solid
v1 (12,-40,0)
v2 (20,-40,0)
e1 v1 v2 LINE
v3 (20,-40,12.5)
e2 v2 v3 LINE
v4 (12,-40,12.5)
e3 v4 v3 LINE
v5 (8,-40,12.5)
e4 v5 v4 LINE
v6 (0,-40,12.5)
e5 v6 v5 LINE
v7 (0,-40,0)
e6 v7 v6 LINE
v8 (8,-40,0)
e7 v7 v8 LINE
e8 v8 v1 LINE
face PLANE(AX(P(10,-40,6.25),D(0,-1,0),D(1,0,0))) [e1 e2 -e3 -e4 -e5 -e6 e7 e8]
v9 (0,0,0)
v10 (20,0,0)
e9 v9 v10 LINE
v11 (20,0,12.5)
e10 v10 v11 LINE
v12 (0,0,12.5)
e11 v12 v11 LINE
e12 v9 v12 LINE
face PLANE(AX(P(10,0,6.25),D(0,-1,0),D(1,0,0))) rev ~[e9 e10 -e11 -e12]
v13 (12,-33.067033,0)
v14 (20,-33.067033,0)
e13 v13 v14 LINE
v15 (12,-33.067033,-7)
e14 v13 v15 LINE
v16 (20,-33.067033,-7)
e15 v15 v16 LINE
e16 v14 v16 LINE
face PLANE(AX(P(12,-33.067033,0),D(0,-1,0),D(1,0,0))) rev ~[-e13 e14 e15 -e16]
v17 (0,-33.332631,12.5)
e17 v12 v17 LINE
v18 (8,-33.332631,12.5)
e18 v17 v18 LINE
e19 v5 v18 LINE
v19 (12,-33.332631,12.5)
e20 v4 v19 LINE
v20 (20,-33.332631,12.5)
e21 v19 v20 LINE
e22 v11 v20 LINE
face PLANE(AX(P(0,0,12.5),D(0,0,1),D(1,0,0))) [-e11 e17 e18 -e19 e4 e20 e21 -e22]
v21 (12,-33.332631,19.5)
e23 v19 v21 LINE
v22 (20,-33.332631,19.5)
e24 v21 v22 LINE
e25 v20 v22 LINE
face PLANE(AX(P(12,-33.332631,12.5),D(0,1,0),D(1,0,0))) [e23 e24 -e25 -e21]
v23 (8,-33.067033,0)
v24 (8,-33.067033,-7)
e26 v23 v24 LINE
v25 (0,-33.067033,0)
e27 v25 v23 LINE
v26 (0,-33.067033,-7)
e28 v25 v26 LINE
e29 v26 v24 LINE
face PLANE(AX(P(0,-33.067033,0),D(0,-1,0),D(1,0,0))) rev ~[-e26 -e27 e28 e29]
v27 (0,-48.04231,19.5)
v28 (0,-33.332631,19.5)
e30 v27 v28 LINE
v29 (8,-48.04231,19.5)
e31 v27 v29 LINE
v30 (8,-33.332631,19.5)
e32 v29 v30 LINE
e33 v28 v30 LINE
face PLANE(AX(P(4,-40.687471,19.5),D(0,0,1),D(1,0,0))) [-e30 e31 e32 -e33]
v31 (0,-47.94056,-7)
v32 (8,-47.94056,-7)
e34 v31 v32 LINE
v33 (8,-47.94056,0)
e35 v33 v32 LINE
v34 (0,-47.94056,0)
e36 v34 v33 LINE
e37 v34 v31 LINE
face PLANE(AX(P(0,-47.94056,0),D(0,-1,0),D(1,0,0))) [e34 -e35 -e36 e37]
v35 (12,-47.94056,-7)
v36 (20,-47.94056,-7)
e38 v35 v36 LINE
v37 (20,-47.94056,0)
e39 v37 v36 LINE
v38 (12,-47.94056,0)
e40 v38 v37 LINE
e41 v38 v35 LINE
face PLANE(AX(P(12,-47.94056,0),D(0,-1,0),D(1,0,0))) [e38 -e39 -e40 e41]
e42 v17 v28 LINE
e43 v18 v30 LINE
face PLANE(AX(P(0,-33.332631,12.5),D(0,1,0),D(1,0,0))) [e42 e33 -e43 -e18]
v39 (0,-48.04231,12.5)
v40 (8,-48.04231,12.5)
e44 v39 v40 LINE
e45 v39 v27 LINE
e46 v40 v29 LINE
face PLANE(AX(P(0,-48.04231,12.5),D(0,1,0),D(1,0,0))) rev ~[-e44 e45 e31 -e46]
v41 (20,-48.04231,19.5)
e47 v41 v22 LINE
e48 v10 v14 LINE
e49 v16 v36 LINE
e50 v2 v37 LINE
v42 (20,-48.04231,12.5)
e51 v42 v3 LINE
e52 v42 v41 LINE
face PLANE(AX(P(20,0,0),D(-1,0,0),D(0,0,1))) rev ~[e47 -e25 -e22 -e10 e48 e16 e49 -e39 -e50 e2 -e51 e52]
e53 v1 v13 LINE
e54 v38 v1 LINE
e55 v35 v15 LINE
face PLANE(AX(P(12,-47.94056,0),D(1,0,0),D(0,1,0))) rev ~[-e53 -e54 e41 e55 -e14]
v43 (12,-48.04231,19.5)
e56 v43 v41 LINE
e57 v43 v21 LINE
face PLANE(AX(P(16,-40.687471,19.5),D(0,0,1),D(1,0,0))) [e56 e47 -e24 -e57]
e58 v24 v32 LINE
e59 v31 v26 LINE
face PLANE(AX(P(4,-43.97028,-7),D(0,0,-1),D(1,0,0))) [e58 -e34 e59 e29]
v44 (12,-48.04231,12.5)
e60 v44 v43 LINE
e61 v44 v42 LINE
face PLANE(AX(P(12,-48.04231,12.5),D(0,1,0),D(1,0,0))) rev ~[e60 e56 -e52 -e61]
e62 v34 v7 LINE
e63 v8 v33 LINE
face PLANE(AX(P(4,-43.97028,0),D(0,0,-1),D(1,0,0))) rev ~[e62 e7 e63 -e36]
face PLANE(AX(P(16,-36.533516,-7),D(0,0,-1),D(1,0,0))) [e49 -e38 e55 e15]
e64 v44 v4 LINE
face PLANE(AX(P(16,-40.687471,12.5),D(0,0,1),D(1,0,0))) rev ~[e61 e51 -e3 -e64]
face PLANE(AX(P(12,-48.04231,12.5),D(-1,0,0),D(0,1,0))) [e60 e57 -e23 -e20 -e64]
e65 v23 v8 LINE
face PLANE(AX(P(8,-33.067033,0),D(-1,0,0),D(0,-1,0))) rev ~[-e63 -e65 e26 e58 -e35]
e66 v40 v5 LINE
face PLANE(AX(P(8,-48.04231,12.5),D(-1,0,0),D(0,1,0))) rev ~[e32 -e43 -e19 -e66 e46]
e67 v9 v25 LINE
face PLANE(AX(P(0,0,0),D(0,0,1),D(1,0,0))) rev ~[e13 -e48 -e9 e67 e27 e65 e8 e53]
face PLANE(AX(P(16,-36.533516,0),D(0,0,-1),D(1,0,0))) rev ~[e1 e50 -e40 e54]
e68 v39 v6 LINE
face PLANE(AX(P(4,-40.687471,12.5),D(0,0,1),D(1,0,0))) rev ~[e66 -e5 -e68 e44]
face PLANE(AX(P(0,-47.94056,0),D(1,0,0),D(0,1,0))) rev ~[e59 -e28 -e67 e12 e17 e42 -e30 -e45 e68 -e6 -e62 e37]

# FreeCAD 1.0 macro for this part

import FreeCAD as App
import Part
import Sketcher

V = App.Vector


def add_polygon(sketch, points):
    """Adds a closed chain of lines whose ends are joined by coincident constraints."""
    first, n = sketch.GeometryCount, len(points)
    for a, b in zip(points, points[1:] + points[:1]):
        sketch.addGeometry(Part.LineSegment(App.Vector(*a, 0), App.Vector(*b, 0)), False)
    for i in range(n):
        sketch.addConstraint(Sketcher.Constraint("Coincident", first + i, 2, first + (i + 1) % n, 1))

doc = App.newDocument("Part")
params = doc.addObject("Spreadsheet::Sheet", "Params")
for row, (alias, value) in enumerate([
    ("sketch1_width", "20 mm"),
    ("sketch1_height", "12.5 mm"),
    ("pad1_length", "40 mm"),
    ("sketch2_width", "8 mm"),
    ("pad2_length", "7 mm"),
    ("sketch3_width", "8 mm"),
    ("pad3_length", "7 mm"),
], start=1):
    params.set(f"A{row}", alias)
    params.set(f"B{row}", "=" + value)
    params.setAlias(f"B{row}", alias)

body = doc.addObject("PartDesign::Body", "Body")

# Sketch on XZ plane
sketch1 = body.newObject("Sketcher::SketchObject", "Sketch")
sketch1.AttachmentSupport = (doc.getObject("XZ_Plane"), [""])
sketch1.MapMode = "FlatFace"
add_polygon(sketch1, [(0, 12), (0, 0), (20, 0), (20, 12)])  # lines 0-3
sketch1.addConstraint([
    Sketcher.Constraint("Vertical", 0),
    Sketcher.Constraint("Horizontal", 1),
    Sketcher.Constraint("Vertical", 2),
    Sketcher.Constraint("Horizontal", 3),
    Sketcher.Constraint("Coincident", 0, 2, -1, 1),
    Sketcher.Constraint("DistanceX", 1, 1, 1, 2, 20.0),
    Sketcher.Constraint("DistanceY", 0, 2, 0, 1, 12.5),
])
sketch1.setExpression("Constraints[9]", "Params.sketch1_width")
sketch1.setExpression("Constraints[10]", "Params.sketch1_height")
pad1 = body.newObject("PartDesign::Pad", "Pad")
pad1.Profile = sketch1
pad1.setExpression("Length", "Params.pad1_length")

# Sketch on XY plane
sketch2 = body.newObject("Sketcher::SketchObject", "Sketch001")
sketch2.AttachmentSupport = (doc.getObject("XY_Plane"), [""])
sketch2.MapMode = "FlatFace"
sketch2.AttachmentOffset = App.Placement(V(0, 0, 12.5), App.Rotation())
add_polygon(sketch2, [(0, -33), (0, -48), (8, -48), (8, -33)])  # lines 0-3
add_polygon(sketch2, [(12, -33), (12, -48), (20, -48), (20, -33)])  # lines 4-7
sketch2.addConstraint([
    Sketcher.Constraint("Vertical", 0),
    Sketcher.Constraint("Horizontal", 1),
    Sketcher.Constraint("Vertical", 2),
    Sketcher.Constraint("Horizontal", 3),
    Sketcher.Constraint("Vertical", 4),
    Sketcher.Constraint("Horizontal", 5),
    Sketcher.Constraint("Vertical", 6),
    Sketcher.Constraint("Horizontal", 7),
    Sketcher.Constraint("PointOnObject", 0, 2, -2),
    Sketcher.Constraint("Horizontal", 1, 2, 4, 2),
    Sketcher.Constraint("Horizontal", 3, 2, 6, 2),
    Sketcher.Constraint("Equal", 3, 5),
    Sketcher.Constraint("DistanceX", 1, 1, 1, 2, 8.0),
    Sketcher.Constraint("DistanceX", -1, 1, 4, 2, 12.0),
    Sketcher.Constraint("DistanceY", 0, 2, 0, 1, 14.709679),
    Sketcher.Constraint("DistanceY", 0, 2, -1, 1, 48.04231),
])
sketch2.setExpression("Constraints[20]", "Params.sketch2_width")
pad2 = body.newObject("PartDesign::Pad", "Pad001")
pad2.Profile = sketch2
pad2.setExpression("Length", "Params.pad2_length")

# Sketch on XY plane
sketch3 = body.newObject("Sketcher::SketchObject", "Sketch002")
sketch3.AttachmentSupport = (doc.getObject("XY_Plane"), [""])
sketch3.MapMode = "FlatFace"
add_polygon(sketch3, [(0, -48), (0, -33), (8, -33), (8, -48)])  # lines 0-3
add_polygon(sketch3, [(12, -33), (20, -33), (20, -48), (12, -48)])  # lines 4-7
sketch3.addConstraint([
    Sketcher.Constraint("Vertical", 0),
    Sketcher.Constraint("Horizontal", 1),
    Sketcher.Constraint("Vertical", 2),
    Sketcher.Constraint("Horizontal", 3),
    Sketcher.Constraint("Horizontal", 4),
    Sketcher.Constraint("Vertical", 5),
    Sketcher.Constraint("Horizontal", 6),
    Sketcher.Constraint("Vertical", 7),
    Sketcher.Constraint("PointOnObject", 0, 2, -2),
    Sketcher.Constraint("Horizontal", 1, 2, 4, 2),
    Sketcher.Constraint("Horizontal", 3, 2, 5, 2),
    Sketcher.Constraint("Equal", 3, 4),
    Sketcher.Constraint("DistanceX", 1, 1, 1, 2, 8.0),
    Sketcher.Constraint("DistanceX", -1, 1, 4, 2, 20.0),
    Sketcher.Constraint("DistanceY", 0, 1, 0, 2, 14.873527),
    Sketcher.Constraint("DistanceY", 2, 2, -1, 1, 47.94056),
])
sketch3.setExpression("Constraints[20]", "Params.sketch3_width")
pad3 = body.newObject("PartDesign::Pad", "Pad002")
pad3.Profile = sketch3
pad3.setExpression("Length", "Params.pad3_length")
pad3.Reversed = True

doc.recompute()
